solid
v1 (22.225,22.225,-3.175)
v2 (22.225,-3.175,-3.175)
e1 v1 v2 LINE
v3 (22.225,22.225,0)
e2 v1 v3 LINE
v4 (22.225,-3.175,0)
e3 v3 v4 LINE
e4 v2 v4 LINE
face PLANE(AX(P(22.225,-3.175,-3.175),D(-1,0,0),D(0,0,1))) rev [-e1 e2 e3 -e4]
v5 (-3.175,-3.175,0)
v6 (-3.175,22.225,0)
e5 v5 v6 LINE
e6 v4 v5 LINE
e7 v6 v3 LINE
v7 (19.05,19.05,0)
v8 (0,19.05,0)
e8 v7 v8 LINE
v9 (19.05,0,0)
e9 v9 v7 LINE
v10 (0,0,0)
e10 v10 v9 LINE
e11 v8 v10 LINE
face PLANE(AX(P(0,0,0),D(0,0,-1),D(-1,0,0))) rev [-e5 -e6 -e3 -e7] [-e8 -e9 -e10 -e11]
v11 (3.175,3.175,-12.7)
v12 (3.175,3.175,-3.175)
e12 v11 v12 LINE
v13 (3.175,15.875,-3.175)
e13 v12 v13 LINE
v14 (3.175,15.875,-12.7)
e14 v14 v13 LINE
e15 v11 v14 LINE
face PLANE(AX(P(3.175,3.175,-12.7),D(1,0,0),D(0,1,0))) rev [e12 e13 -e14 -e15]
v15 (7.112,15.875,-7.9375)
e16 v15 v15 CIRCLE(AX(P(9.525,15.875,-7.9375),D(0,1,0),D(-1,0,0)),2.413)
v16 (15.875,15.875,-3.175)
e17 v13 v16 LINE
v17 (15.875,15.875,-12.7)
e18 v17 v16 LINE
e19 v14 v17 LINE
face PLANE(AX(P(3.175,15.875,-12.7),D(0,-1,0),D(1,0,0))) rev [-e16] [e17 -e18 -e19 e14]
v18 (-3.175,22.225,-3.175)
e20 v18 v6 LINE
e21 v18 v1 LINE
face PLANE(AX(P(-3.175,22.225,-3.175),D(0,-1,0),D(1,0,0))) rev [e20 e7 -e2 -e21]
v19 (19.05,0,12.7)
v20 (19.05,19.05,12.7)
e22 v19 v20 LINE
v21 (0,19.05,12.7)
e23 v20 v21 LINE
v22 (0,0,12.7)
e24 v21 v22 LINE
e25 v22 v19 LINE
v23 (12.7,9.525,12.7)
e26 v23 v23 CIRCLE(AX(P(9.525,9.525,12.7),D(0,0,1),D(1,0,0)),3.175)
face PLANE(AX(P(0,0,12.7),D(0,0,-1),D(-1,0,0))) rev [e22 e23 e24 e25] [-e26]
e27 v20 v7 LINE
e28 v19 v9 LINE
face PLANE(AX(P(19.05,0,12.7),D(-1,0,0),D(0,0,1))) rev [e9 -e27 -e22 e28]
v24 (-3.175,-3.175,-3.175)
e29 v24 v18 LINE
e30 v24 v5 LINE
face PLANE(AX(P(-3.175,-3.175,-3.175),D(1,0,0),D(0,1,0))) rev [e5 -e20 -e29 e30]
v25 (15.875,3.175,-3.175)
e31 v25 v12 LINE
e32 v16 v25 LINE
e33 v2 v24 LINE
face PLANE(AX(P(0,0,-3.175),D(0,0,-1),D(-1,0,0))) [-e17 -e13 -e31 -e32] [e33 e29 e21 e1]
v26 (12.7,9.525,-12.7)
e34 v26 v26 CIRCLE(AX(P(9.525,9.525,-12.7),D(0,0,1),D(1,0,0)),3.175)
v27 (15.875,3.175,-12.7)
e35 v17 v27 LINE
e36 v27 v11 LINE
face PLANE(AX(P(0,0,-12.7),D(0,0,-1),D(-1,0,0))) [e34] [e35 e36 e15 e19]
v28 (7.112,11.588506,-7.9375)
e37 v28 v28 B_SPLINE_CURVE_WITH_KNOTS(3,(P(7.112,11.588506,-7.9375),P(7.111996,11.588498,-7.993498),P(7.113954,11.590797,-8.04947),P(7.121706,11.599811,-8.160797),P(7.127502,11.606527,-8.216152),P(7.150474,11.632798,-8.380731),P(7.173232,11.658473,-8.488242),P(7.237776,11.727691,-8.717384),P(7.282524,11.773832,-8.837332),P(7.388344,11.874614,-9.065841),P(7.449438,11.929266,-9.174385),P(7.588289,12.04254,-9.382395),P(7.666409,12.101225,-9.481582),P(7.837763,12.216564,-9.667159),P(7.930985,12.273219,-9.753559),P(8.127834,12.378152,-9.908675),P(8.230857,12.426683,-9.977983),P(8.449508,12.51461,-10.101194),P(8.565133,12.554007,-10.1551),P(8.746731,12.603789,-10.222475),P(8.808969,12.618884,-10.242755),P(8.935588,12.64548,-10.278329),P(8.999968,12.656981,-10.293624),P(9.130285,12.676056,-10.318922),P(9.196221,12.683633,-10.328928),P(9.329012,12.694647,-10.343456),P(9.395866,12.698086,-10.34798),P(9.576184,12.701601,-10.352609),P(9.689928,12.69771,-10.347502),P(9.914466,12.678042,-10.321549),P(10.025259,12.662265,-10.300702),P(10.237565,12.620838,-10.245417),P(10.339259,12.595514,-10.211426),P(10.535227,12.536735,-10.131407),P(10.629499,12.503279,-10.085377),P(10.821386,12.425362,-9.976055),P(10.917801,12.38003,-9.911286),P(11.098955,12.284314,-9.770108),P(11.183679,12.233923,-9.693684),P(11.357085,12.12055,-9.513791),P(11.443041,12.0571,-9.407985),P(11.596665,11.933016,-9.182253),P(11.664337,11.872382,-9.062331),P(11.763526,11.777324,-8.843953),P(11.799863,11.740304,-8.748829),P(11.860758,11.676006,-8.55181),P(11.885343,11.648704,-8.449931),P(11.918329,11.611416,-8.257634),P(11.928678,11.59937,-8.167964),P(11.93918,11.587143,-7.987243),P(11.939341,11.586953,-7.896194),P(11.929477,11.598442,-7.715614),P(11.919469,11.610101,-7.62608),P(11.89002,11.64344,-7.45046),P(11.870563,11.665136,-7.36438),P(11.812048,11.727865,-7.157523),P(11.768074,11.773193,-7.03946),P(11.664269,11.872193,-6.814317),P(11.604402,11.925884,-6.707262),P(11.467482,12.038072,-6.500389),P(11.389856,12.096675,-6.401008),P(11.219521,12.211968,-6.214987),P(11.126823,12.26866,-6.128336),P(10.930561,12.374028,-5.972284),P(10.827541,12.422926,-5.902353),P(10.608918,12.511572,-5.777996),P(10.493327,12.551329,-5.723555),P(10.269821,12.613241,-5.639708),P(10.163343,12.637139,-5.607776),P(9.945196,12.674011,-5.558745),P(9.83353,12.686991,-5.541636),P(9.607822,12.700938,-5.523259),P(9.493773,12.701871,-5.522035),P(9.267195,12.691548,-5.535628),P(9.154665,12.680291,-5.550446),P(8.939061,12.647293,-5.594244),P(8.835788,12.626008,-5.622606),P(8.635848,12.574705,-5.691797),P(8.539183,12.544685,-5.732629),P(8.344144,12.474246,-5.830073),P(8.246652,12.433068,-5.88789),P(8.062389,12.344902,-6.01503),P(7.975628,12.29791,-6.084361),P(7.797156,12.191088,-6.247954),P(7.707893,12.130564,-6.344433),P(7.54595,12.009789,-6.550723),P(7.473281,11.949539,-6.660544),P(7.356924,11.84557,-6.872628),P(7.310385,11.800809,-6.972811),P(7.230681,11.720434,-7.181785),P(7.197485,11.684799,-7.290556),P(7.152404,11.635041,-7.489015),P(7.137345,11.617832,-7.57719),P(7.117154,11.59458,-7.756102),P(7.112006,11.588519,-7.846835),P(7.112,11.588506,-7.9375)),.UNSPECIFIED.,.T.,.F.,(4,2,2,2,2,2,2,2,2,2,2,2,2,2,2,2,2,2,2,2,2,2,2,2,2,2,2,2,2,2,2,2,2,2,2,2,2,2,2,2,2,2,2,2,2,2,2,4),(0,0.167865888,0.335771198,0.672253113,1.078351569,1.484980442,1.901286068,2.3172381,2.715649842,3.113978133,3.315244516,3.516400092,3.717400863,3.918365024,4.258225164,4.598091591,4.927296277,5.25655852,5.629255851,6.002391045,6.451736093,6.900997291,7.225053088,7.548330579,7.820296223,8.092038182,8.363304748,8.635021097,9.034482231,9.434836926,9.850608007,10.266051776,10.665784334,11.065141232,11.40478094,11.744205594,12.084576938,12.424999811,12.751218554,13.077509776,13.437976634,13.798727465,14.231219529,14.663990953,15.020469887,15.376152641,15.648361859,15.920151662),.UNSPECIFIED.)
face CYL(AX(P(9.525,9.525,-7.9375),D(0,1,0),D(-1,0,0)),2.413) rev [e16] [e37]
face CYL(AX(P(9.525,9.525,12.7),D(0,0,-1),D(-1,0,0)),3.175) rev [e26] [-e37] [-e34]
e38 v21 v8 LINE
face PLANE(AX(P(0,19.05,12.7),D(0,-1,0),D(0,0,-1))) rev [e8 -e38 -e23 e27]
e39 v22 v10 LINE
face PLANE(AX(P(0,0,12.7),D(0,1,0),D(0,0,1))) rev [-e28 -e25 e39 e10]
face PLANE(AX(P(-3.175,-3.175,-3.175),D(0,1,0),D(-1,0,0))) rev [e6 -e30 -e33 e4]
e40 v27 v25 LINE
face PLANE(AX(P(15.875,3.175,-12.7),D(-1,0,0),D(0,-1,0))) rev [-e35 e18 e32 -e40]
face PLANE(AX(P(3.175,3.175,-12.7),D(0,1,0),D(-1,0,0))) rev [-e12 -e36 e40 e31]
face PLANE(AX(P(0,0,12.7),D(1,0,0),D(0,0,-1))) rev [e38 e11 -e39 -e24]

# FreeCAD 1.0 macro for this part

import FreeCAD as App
import Part
import Sketcher

V = App.Vector
Q = App.Units.Quantity


def add_polygon(sketch, points):
    """Adds a closed chain of lines whose ends are joined by coincident constraints."""
    first, n = sketch.GeometryCount, len(points)
    for a, b in zip(points, points[1:] + points[:1]):
        sketch.addGeometry(Part.LineSegment(App.Vector(*a, 0), App.Vector(*b, 0)), False)
    for i in range(n):
        sketch.addConstraint(Sketcher.Constraint("Coincident", first + i, 2, first + (i + 1) % n, 1))

doc = App.newDocument("Part")
body = doc.addObject("PartDesign::Body", "Body")

sketch1 = doc.addObject("Sketcher::SketchObject", "Sketch")
body.addObject(sketch1)
sketch1.AttachmentSupport = (doc.XY_Plane, [""])
sketch1.MapMode = "FlatFace"
add_polygon(sketch1, [(0, 19.05), (0, 0), (19.05, 0), (19.05, 19.05)])
sketch1.addGeometry(Part.Circle(V(9.525, 9.525, 0), V(0, 0, 1), 3.175), False)
sketch1.addConstraint([
    Sketcher.Constraint("Vertical", 0),
    Sketcher.Constraint("Horizontal", 1),
    Sketcher.Constraint("Vertical", 2),
    Sketcher.Constraint("Horizontal", 3),
    Sketcher.Constraint("Coincident", 0, 2, -1, 1),
    Sketcher.Constraint("Equal", 3, 0),
    Sketcher.Constraint("Diameter", 4, Q("0.25 in")),
    Sketcher.Constraint("DistanceX", 1, 1, 1, 2, Q("0.75 in")),
    Sketcher.Constraint("DistanceX", -1, 1, 4, 3, Q("0.375 in")),
    Sketcher.Constraint("DistanceY", -1, 1, 4, 3, Q("0.375 in")),
])
pad1 = doc.addObject("PartDesign::Pad", "Pad")
body.addObject(pad1)
pad1.Profile = sketch1
pad1.Length = Q("0.5 in")

sketch2 = doc.addObject("Sketcher::SketchObject", "Sketch001")
body.addObject(sketch2)
sketch2.AttachmentSupport = (doc.XY_Plane, [""])
sketch2.MapMode = "FlatFace"
add_polygon(sketch2, [(22.225, 22.225), (22.225, -3.175), (-3.175, -3.175), (-3.175, 22.225)])
sketch2.addConstraint([
    Sketcher.Constraint("Vertical", 0),
    Sketcher.Constraint("Horizontal", 1),
    Sketcher.Constraint("Vertical", 2),
    Sketcher.Constraint("Horizontal", 3),
    Sketcher.Constraint("Equal", 3, 0),
    Sketcher.Constraint("DistanceX", 1, 2, 1, 1, Q("1 in")),
    Sketcher.Constraint("DistanceX", -1, 1, 0, 2, Q("0.875 in")),
    Sketcher.Constraint("DistanceY", 0, 2, -1, 1, Q("0.125 in")),
])
pad2 = doc.addObject("PartDesign::Pad", "Pad001")
body.addObject(pad2)
pad2.Profile = sketch2
pad2.Length = Q("0.125 in")
pad2.Reversed = True

sketch3 = doc.addObject("Sketcher::SketchObject", "Sketch002")
body.addObject(sketch3)
sketch3.AttachmentSupport = (doc.XY_Plane, [""])
sketch3.MapMode = "FlatFace"
sketch3.AttachmentOffset = App.Placement(V(0, 0, -0.125 * 25.4), App.Rotation())
add_polygon(sketch3, [(15.875, 15.875), (15.875, 3.175), (3.175, 3.175), (3.175, 15.875)])
sketch3.addConstraint([
    Sketcher.Constraint("Vertical", 0),
    Sketcher.Constraint("Horizontal", 1),
    Sketcher.Constraint("Vertical", 2),
    Sketcher.Constraint("Horizontal", 3),
    Sketcher.Constraint("Equal", 3, 0),
    Sketcher.Constraint("DistanceX", 1, 2, 1, 1, Q("0.5 in")),
    Sketcher.Constraint("DistanceX", -1, 1, 0, 2, Q("0.625 in")),
    Sketcher.Constraint("DistanceY", -1, 1, 0, 2, Q("0.125 in")),
])
pad3 = doc.addObject("PartDesign::Pad", "Pad002")
body.addObject(pad3)
pad3.Profile = sketch3
pad3.Length = Q("0.375 in")
pad3.Reversed = True

sketch4 = doc.addObject("Sketcher::SketchObject", "Sketch003")
body.addObject(sketch4)
sketch4.AttachmentSupport = (doc.XY_Plane, [""])
sketch4.MapMode = "FlatFace"
sketch4.AttachmentOffset = App.Placement(V(0, 0, 0.5 * 25.4), App.Rotation())
sketch4.addGeometry(Part.Circle(V(9.525, 9.525, 0), V(0, 0, 1), 3.175), False)
sketch4.addConstraint([
    Sketcher.Constraint("Diameter", 0, Q("0.25 in")),
    Sketcher.Constraint("DistanceX", -1, 1, 0, 3, Q("0.375 in")),
    Sketcher.Constraint("DistanceY", -1, 1, 0, 3, Q("0.375 in")),
])
pocket1 = doc.addObject("PartDesign::Pocket", "Pocket")
body.addObject(pocket1)
pocket1.Profile = sketch4
pocket1.Type = "ThroughAll"

sketch5 = doc.addObject("Sketcher::SketchObject", "Sketch004")
body.addObject(sketch5)
sketch5.AttachmentSupport = (doc.XZ_Plane, [""])
sketch5.MapMode = "FlatFace"
sketch5.AttachmentOffset = App.Placement(V(0, 0, -0.625 * 25.4), App.Rotation())
sketch5.addGeometry(Part.Circle(V(9.525, -7.9375, 0), V(0, 0, 1), 2.413), False)
sketch5.addConstraint([
    Sketcher.Constraint("Diameter", 0, Q("0.19 in")),
    Sketcher.Constraint("DistanceX", -1, 1, 0, 3, Q("0.375 in")),
    Sketcher.Constraint("DistanceY", 0, 3, -1, 1, Q("0.3125 in")),
])
pocket2 = doc.addObject("PartDesign::Pocket", "Pocket001")
body.addObject(pocket2)
pocket2.Profile = sketch5
pocket2.Length = Q("0.25 in")
pocket2.Reversed = True

doc.recompute()
